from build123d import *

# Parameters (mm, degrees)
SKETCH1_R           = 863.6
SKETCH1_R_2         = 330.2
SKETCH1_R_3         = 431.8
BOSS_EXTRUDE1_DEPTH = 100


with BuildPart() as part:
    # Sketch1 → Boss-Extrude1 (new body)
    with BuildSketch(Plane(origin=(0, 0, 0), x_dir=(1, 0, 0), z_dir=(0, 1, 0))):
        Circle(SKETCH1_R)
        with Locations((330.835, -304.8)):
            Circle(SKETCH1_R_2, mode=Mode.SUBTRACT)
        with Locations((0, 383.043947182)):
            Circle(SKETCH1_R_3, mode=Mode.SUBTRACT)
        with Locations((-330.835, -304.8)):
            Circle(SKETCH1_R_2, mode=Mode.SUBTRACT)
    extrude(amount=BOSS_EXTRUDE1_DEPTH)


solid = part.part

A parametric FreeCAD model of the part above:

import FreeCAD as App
import Part
import Sketcher
Q = App.Units.Quantity

doc = App.newDocument("Part")
params = doc.addObject("Spreadsheet::Sheet", "Params")
for row, (alias, value) in enumerate([
    ("sketch1_diameter", "68 in"),
    ("sketch1_diameter2", "26 in"),
    ("sketch1_diameter3", "34 in"),
    ("pad1_length", "100 mm"),
], start=1):
    params.set(f"A{row}", alias)
    params.set(f"B{row}", "=" + value)
    params.setAlias(f"B{row}", alias)

body = doc.addObject("PartDesign::Body", "Body")

sketch1 = body.newObject("Sketcher::SketchObject", "Sketch")
sketch1.AttachmentSupport = (doc.getObject("XZ_Plane"), [""])
sketch1.MapMode = "FlatFace"
sketch1.addGeometry(Part.Circle(App.Vector(0, 0, 0), App.Vector(0, 0, 1), 863.6), False)
sketch1.addGeometry(Part.Circle(App.Vector(-330.835, 304.8, 0), App.Vector(0, 0, 1), 330.2), False)
sketch1.addGeometry(Part.Circle(App.Vector(330.835, 304.8, 0), App.Vector(0, 0, 1), 330.2), False)
sketch1.addGeometry(Part.Circle(App.Vector(0, -383.043947, 0), App.Vector(0, 0, 1), 431.8), False)
sketch1.addConstraint(Sketcher.Constraint("Coincident", 0, 3, -1, 1))
sketch1.addConstraint(Sketcher.Constraint("Equal", 1, 2))
sketch1.addConstraint(Sketcher.Constraint("Symmetric", 1, 3, 2, 3, -2))
sketch1.addConstraint(Sketcher.Constraint("PointOnObject", 3, 3, -2))
sketch1.addConstraint(Sketcher.Constraint("Diameter", 0, Q("68 in")))
sketch1.addConstraint(Sketcher.Constraint("Diameter", 1, Q("26 in")))
sketch1.addConstraint(Sketcher.Constraint("Diameter", 3, Q("34 in")))
sketch1.addConstraint(Sketcher.Constraint("DistanceY", -1, 1, 1, 3, Q("12 in")))
sketch1.addConstraint(Sketcher.Constraint("DistanceX", 1, 3, 2, 3, Q("26.05 in")))
sketch1.addConstraint(Sketcher.Constraint("DistanceY", 3, 3, -1, 1, 383.043947))
sketch1.setExpression("Constraints[4]", "Params.sketch1_diameter")
sketch1.setExpression("Constraints[5]", "Params.sketch1_diameter2")
sketch1.setExpression("Constraints[6]", "Params.sketch1_diameter3")
pad1 = body.newObject("PartDesign::Pad", "Pad")
pad1.Profile = sketch1
pad1.setExpression("Length", "Params.pad1_length")
pad1.Reversed = True

doc.recompute()
